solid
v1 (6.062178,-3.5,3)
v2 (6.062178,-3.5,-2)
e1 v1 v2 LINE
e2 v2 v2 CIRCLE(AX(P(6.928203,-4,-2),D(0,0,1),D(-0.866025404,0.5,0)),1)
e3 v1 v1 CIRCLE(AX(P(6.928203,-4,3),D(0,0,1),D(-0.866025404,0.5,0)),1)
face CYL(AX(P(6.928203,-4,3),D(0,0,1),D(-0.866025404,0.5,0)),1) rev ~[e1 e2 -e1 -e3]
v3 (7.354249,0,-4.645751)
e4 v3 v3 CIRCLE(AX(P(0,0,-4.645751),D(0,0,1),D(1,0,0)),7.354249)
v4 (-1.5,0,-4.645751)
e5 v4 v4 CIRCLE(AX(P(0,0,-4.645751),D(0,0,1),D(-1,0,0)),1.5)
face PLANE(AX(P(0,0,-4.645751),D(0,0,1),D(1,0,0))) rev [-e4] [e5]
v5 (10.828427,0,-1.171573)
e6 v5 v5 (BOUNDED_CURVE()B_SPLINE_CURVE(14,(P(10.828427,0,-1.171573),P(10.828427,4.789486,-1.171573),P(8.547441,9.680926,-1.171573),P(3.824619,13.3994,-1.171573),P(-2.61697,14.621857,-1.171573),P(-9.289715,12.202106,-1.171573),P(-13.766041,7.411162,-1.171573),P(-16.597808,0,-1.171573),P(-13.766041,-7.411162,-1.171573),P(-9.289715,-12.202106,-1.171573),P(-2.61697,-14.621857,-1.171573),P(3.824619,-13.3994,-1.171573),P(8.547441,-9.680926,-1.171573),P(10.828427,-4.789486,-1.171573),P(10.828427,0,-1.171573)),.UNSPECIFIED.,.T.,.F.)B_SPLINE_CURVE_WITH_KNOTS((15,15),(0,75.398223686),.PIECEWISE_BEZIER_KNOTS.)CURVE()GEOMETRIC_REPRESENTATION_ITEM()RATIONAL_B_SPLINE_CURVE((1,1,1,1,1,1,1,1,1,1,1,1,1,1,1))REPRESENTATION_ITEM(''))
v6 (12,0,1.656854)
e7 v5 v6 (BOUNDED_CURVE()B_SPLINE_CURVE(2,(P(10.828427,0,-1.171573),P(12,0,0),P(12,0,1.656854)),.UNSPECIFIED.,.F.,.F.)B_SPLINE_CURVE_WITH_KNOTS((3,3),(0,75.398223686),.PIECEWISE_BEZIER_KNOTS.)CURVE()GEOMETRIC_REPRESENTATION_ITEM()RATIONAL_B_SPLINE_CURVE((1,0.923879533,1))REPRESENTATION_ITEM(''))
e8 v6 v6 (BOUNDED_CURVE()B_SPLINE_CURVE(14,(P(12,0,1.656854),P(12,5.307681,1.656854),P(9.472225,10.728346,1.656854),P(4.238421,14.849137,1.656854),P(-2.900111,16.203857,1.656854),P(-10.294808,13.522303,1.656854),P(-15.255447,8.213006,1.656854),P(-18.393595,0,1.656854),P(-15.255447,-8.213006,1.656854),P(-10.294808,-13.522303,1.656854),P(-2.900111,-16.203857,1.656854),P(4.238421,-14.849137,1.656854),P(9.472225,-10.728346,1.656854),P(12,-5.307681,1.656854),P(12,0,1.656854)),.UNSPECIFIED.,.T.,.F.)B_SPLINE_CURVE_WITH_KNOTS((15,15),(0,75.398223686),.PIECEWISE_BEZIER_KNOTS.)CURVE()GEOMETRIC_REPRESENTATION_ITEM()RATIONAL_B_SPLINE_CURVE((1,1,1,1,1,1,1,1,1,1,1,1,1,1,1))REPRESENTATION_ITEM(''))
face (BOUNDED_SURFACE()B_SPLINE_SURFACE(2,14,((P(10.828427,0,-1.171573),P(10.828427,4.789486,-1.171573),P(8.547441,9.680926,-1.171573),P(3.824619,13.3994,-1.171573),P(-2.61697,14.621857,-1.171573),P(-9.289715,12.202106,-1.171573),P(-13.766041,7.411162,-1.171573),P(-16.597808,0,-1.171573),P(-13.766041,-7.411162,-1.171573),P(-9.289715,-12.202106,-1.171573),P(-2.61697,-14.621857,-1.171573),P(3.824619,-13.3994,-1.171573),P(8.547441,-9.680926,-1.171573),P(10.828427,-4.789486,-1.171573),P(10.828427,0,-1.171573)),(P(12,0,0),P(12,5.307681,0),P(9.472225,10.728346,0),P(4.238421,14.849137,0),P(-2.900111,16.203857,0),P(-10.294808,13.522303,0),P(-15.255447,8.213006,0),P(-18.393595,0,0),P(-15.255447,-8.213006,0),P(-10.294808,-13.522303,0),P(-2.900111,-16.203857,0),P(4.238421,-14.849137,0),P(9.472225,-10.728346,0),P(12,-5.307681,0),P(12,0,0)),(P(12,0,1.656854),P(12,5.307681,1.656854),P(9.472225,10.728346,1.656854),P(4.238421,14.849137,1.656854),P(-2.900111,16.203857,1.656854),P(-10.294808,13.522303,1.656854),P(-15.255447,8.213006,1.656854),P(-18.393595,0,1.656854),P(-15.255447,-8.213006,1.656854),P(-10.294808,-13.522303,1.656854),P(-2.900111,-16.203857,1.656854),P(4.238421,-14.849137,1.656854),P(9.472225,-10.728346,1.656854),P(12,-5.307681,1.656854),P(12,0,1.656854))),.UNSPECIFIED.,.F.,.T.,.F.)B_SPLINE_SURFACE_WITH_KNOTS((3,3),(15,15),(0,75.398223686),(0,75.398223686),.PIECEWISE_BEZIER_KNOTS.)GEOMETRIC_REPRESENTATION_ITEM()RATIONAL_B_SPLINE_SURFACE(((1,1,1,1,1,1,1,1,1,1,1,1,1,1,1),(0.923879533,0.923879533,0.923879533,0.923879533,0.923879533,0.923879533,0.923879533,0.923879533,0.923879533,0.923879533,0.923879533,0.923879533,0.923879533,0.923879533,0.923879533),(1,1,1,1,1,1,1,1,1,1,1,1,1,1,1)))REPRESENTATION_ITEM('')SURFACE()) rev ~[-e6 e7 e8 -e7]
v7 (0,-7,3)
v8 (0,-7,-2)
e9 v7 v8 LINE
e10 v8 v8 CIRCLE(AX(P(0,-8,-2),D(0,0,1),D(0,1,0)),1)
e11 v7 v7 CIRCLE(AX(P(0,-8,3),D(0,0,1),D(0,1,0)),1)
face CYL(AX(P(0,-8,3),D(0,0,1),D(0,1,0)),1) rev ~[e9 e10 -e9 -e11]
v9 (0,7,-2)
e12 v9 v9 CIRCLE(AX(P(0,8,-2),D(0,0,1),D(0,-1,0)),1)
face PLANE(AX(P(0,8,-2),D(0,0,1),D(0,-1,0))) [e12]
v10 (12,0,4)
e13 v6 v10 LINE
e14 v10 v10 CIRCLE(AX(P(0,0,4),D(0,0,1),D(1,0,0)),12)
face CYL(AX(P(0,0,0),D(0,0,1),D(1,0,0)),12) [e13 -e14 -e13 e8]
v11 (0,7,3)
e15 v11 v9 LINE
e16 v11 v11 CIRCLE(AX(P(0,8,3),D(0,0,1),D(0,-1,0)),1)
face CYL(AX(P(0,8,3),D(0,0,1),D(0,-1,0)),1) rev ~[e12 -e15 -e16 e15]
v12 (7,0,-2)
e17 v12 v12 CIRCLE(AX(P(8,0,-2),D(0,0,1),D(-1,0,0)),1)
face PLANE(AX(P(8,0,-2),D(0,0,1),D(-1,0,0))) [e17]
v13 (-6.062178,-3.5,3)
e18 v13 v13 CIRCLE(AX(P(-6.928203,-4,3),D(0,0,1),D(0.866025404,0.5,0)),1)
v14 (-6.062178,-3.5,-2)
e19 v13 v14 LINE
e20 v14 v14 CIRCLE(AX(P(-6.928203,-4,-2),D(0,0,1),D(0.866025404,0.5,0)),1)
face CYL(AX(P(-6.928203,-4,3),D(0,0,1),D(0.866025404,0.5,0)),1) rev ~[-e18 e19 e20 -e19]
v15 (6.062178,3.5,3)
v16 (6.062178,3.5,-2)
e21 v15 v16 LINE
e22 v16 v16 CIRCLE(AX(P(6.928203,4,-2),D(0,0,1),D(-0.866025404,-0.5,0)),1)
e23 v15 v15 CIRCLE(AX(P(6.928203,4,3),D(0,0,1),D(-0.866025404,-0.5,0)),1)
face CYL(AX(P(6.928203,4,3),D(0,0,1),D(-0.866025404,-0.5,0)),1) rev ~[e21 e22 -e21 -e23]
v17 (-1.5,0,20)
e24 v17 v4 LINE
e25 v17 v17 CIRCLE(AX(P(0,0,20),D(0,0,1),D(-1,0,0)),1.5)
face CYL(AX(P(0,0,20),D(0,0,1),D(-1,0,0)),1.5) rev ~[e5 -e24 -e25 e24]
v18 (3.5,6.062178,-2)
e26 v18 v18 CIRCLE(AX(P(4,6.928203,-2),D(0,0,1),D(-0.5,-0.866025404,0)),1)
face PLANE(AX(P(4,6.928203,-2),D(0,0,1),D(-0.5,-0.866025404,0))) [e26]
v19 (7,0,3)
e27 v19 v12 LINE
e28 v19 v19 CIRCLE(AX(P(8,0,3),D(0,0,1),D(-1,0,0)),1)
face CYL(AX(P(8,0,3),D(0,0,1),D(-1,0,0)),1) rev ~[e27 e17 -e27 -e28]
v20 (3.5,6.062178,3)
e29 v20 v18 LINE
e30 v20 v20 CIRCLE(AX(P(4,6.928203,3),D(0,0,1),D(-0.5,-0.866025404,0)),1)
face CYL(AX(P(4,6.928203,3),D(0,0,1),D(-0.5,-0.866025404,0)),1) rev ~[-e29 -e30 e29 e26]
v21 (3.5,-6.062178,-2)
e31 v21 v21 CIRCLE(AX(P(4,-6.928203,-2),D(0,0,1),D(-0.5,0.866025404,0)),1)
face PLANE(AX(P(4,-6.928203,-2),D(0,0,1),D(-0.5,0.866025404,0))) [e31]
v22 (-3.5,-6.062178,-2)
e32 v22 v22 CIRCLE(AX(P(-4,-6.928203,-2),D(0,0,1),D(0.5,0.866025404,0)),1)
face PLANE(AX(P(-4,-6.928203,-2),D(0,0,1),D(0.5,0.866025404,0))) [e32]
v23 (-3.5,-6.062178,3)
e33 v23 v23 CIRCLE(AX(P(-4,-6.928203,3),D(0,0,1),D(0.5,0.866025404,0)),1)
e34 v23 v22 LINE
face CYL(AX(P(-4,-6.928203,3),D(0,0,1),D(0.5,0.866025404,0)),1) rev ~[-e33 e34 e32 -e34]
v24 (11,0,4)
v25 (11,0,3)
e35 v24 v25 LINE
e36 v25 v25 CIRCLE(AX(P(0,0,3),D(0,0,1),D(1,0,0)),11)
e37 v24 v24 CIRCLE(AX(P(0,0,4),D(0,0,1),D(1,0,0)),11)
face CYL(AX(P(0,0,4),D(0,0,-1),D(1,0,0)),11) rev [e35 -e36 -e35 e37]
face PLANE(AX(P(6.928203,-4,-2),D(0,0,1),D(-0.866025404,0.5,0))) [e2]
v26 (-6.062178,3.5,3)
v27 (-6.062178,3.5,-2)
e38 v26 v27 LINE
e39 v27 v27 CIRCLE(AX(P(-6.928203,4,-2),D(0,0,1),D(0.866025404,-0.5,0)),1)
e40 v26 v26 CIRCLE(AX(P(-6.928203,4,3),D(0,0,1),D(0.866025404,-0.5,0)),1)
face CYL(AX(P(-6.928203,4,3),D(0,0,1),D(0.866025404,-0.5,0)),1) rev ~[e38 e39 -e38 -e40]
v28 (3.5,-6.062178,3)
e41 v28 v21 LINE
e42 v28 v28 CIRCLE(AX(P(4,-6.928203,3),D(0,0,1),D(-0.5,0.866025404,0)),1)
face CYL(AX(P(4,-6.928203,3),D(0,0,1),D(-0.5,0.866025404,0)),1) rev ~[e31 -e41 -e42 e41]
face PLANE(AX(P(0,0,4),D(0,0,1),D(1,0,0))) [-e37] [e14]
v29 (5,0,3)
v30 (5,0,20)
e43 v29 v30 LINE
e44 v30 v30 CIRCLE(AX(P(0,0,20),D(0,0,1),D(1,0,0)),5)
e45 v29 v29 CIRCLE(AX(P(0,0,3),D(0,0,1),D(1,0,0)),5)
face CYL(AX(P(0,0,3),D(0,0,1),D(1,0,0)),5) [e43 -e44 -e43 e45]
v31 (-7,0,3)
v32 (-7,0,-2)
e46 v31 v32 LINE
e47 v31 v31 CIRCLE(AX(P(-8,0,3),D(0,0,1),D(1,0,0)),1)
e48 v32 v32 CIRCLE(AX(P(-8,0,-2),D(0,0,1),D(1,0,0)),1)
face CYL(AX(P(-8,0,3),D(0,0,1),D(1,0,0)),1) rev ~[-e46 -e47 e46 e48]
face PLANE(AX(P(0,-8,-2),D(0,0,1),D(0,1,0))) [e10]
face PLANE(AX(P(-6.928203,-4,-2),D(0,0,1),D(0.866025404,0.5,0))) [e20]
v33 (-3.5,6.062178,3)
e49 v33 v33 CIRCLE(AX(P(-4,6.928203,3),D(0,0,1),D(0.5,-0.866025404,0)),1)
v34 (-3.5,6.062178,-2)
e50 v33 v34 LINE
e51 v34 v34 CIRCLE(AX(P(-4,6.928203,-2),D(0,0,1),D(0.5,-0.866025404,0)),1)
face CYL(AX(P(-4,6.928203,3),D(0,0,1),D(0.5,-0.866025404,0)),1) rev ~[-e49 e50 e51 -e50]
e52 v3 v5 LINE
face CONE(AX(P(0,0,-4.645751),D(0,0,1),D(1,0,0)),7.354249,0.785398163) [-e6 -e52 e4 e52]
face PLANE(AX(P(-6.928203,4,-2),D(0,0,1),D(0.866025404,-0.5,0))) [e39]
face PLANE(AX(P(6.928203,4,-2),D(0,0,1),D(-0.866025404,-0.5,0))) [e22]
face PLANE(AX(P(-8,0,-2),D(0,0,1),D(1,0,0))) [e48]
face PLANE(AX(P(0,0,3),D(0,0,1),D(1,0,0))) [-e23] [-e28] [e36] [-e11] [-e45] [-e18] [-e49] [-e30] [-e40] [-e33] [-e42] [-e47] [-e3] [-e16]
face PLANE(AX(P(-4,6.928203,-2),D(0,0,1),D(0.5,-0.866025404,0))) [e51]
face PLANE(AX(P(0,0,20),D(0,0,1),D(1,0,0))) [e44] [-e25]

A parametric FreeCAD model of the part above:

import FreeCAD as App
import Part
import Sketcher
Q = App.Units.Quantity


def edges_at(feature, points):
    """Names of the edges that pass closest to the given points."""
    edges = feature.Shape.Edges
    near = lambda p: min(range(len(edges)), key=lambda i: edges[i].distToShape(Part.Vertex(*p))[0])
    return sorted({f"Edge{near(p) + 1}" for p in points})

doc = App.newDocument("Part")
body = doc.addObject("PartDesign::Body", "Body")

sketch1 = body.newObject("Sketcher::SketchObject", "Sketch")
sketch1.AttachmentSupport = (doc.getObject("XZ_Plane"), [""])
sketch1.MapMode = "FlatFace"
sketch1.addGeometry([
    Part.LineSegment(App.Vector(0, -4.645751, 0), App.Vector(7.354249, -4.645751, 0)),
    Part.LineSegment(App.Vector(7.354249, -4.645751, 0), App.Vector(12, 0, 0)),
    Part.LineSegment(App.Vector(12, 0, 0), App.Vector(12, 4, 0)),
    Part.LineSegment(App.Vector(12, 4, 0), App.Vector(11, 4, 0)),
    Part.LineSegment(App.Vector(11, 4, 0), App.Vector(11, 3, 0)),
    Part.LineSegment(App.Vector(11, 3, 0), App.Vector(5, 3, 0)),
    Part.LineSegment(App.Vector(5, 3, 0), App.Vector(5, 20, 0)),
    Part.LineSegment(App.Vector(5, 20, 0), App.Vector(0, 20, 0)),
    Part.LineSegment(App.Vector(0, 20, 0), App.Vector(0, -4.645751, 0)),
], False)
sketch1.addConstraint([
    Sketcher.Constraint("Coincident", 0, 2, 1, 1),
    Sketcher.Constraint("Coincident", 1, 2, 2, 1),
    Sketcher.Constraint("Coincident", 2, 2, 3, 1),
    Sketcher.Constraint("Coincident", 3, 2, 4, 1),
    Sketcher.Constraint("Coincident", 4, 2, 5, 1),
    Sketcher.Constraint("Coincident", 5, 2, 6, 1),
    Sketcher.Constraint("Coincident", 6, 2, 7, 1),
    Sketcher.Constraint("Coincident", 7, 2, 8, 1),
    Sketcher.Constraint("Coincident", 8, 2, 0, 1),
    Sketcher.Constraint("Horizontal", 0),
    Sketcher.Constraint("Vertical", 2),
    Sketcher.Constraint("Horizontal", 3),
    Sketcher.Constraint("Vertical", 4),
    Sketcher.Constraint("Horizontal", 5),
    Sketcher.Constraint("Vertical", 6),
    Sketcher.Constraint("Horizontal", 7),
    Sketcher.Constraint("Vertical", 8),
    Sketcher.Constraint("PointOnObject", 1, 2, -1),
    Sketcher.Constraint("PointOnObject", 7, 2, -2),
    Sketcher.Constraint("Equal", 3, 4),
    Sketcher.Constraint("DistanceX", 3, 2, 3, 1, Q("1 mm")),
    Sketcher.Constraint("DistanceX", 5, 2, 5, 1, Q("6 mm")),
    Sketcher.Constraint("DistanceX", 7, 2, 7, 1, Q("5 mm")),
    Sketcher.Constraint("DistanceY", 2, 1, 2, 2, Q("4 mm")),
    Sketcher.Constraint("DistanceY", 6, 1, 6, 2, Q("17 mm")),
    Sketcher.Constraint("Angle", 1, Q("45 deg")),
    Sketcher.Constraint("DistanceX", 0, 1, 0, 2, Q("7.354249 mm")),
])
revolution = body.newObject("PartDesign::Revolution", "Revolution")
revolution.Profile = sketch1
revolution.ReferenceAxis = (sketch1, ["V_Axis"])
revolution.Angle = 360

sketch2 = body.newObject("Sketcher::SketchObject", "Sketch001")
sketch2.AttachmentSupport = (doc.getObject("XY_Plane"), [""])
sketch2.MapMode = "FlatFace"
sketch2.AttachmentOffset = App.Placement(App.Vector(0, 0, 20), App.Rotation())
sketch2.addGeometry(Part.Circle(App.Vector(0, 0, 0), App.Vector(0, 0, 1), 1.5), False)
sketch2.addConstraint([
    Sketcher.Constraint("Coincident", 0, 3, -1, 1),
    Sketcher.Constraint("Diameter", 0, Q("3 mm")),
])
pocket1 = body.newObject("PartDesign::Pocket", "Pocket")
pocket1.Profile = sketch2
pocket1.Type = "ThroughAll"

sketch3 = body.newObject("Sketcher::SketchObject", "Sketch002")
sketch3.AttachmentSupport = (doc.getObject("XY_Plane"), [""])
sketch3.MapMode = "FlatFace"
sketch3.AttachmentOffset = App.Placement(App.Vector(0, 0, 3), App.Rotation())
sketch3.addGeometry(Part.Circle(App.Vector(8, 0, 0), App.Vector(0, 0, 1), 1), False)
sketch3.addConstraint([
    Sketcher.Constraint("PointOnObject", 0, 3, -1),
    Sketcher.Constraint("Diameter", 0, Q("2 mm")),
    Sketcher.Constraint("DistanceX", -1, 1, 0, 3, Q("8 mm")),
])
pocket2 = body.newObject("PartDesign::Pocket", "Pocket001")
pocket2.Profile = sketch3
pocket2.Length = 5
doc.recompute()

polarpattern = body.newObject("PartDesign::PolarPattern", "PolarPattern")
polarpattern.Originals = [pocket2]
polarpattern.Axis = (doc.getObject("Z_Axis"), [""])
polarpattern.Angle = 360
polarpattern.Occurrences = 12
body.Tip = polarpattern
doc.recompute()

fillet = body.newObject("PartDesign::Fillet", "Fillet")
fillet.Base = (polarpattern, edges_at(polarpattern, [(-12, 0, 0)]))
fillet.Radius = 4

doc.recompute()
